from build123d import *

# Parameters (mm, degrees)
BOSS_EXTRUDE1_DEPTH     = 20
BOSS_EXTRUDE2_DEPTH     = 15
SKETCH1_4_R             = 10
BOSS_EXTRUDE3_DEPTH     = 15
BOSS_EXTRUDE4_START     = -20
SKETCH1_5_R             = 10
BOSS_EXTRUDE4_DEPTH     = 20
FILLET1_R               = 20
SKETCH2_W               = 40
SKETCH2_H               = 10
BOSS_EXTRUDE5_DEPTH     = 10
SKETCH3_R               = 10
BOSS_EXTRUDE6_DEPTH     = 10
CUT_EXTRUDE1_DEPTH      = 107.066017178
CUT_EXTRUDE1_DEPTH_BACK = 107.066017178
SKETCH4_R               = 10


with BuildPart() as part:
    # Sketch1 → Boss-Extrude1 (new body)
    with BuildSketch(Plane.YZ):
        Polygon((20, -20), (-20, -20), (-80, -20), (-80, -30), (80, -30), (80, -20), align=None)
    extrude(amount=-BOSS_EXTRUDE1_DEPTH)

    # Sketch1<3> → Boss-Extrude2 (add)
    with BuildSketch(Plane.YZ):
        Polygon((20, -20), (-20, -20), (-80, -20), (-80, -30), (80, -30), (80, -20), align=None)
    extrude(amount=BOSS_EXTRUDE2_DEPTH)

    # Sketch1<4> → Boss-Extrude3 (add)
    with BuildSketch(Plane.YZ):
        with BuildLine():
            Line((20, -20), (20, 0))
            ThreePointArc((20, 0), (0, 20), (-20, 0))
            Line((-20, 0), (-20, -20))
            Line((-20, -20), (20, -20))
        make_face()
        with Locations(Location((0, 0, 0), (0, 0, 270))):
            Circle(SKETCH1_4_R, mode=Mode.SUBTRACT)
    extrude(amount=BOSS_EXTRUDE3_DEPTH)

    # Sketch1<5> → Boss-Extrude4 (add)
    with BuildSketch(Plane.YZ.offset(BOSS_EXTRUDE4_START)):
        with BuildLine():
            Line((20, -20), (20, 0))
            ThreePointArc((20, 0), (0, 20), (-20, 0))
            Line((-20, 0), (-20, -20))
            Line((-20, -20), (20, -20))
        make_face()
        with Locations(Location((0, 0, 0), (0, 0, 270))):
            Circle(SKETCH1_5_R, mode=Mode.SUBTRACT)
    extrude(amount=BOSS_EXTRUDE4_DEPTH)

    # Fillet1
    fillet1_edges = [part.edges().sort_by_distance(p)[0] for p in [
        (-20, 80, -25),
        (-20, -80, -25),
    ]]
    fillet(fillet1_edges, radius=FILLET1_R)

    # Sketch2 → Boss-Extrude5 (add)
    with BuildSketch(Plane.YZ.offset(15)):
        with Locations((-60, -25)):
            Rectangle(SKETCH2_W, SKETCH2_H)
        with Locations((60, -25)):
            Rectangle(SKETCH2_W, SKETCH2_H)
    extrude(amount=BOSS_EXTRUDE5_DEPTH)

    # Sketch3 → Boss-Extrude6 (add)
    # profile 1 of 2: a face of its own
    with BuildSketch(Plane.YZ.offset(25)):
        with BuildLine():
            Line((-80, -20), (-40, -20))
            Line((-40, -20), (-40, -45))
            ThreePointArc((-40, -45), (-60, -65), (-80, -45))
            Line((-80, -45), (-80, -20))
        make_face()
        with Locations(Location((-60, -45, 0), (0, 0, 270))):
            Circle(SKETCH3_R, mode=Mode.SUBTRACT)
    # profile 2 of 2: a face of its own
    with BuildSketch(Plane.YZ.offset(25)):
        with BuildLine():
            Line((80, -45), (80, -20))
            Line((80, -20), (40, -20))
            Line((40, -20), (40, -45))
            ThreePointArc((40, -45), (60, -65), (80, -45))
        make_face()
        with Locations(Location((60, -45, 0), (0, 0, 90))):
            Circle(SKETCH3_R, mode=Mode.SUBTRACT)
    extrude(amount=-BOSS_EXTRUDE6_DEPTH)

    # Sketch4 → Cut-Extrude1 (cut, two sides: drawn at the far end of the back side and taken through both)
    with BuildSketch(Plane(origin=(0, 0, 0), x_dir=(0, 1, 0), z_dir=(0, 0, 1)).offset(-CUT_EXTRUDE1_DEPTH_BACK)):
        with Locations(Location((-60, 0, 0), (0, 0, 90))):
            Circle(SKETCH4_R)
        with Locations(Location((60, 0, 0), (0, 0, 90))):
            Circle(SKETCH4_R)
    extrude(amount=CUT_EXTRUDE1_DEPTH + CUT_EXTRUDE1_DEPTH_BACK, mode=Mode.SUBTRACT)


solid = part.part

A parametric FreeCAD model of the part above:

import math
import FreeCAD as App
import Part
import Sketcher
Q = App.Units.Quantity


def edges_at(feature, points):
    """Names of the edges that pass closest to the given points."""
    edges = feature.Shape.Edges
    near = lambda p: min(range(len(edges)), key=lambda i: edges[i].distToShape(Part.Vertex(*p))[0])
    return sorted({f"Edge{near(p) + 1}" for p in points})


def add_polygon(sketch, points):
    """Adds a closed chain of lines whose ends are joined by coincident constraints."""
    first, n = sketch.GeometryCount, len(points)
    for a, b in zip(points, points[1:] + points[:1]):
        sketch.addGeometry(Part.LineSegment(App.Vector(*a, 0), App.Vector(*b, 0)), False)
    for i in range(n):
        sketch.addConstraint(Sketcher.Constraint("Coincident", first + i, 2, first + (i + 1) % n, 1))

doc = App.newDocument("Part")
body = doc.addObject("PartDesign::Body", "Body")

# Sketch on YZ plane
sketch1 = body.newObject("Sketcher::SketchObject", "Sketch")
sketch1.AttachmentSupport = (doc.getObject("YZ_Plane"), [""])
sketch1.MapMode = "FlatFace"
add_polygon(sketch1, [(-80, -20), (-80, -30), (80, -30), (80, -20)])  # lines 0-3
sketch1.addConstraint([
    Sketcher.Constraint("Vertical", 0),
    Sketcher.Constraint("Horizontal", 1),
    Sketcher.Constraint("Vertical", 2),
    Sketcher.Constraint("Horizontal", 3),
    Sketcher.Constraint("DistanceX", 1, 1, 1, 2, Q("160 mm")),
    Sketcher.Constraint("DistanceY", 0, 2, 0, 1, Q("10 mm")),
    Sketcher.Constraint("DistanceX", 0, 2, -1, 1, Q("80 mm")),
    Sketcher.Constraint("DistanceY", 0, 2, -1, 1, Q("30 mm")),
])
pad1 = body.newObject("PartDesign::Pad", "Pad")
pad1.Profile = sketch1
pad1.Length = 20
pad1.Reversed = True

# Sketch on YZ plane
sketch2 = body.newObject("Sketcher::SketchObject", "Sketch001")
sketch2.AttachmentSupport = (doc.getObject("YZ_Plane"), [""])
sketch2.MapMode = "FlatFace"
add_polygon(sketch2, [(-80, -20), (-80, -30), (80, -30), (80, -20)])  # lines 0-3
sketch2.addConstraint([
    Sketcher.Constraint("Vertical", 0),
    Sketcher.Constraint("Horizontal", 1),
    Sketcher.Constraint("Vertical", 2),
    Sketcher.Constraint("Horizontal", 3),
    Sketcher.Constraint("DistanceX", 1, 1, 1, 2, Q("160 mm")),
    Sketcher.Constraint("DistanceY", 0, 2, 0, 1, Q("10 mm")),
    Sketcher.Constraint("DistanceX", 0, 2, -1, 1, Q("80 mm")),
    Sketcher.Constraint("DistanceY", 0, 2, -1, 1, Q("30 mm")),
])
pad2 = body.newObject("PartDesign::Pad", "Pad001")
pad2.Profile = sketch2
pad2.Length = 15

# Sketch on YZ plane
sketch3 = body.newObject("Sketcher::SketchObject", "Sketch002")
sketch3.AttachmentSupport = (doc.getObject("YZ_Plane"), [""])
sketch3.MapMode = "FlatFace"
sketch3.addGeometry([
    Part.LineSegment(App.Vector(20, -20, 0), App.Vector(20, 0, 0)),  # 0
    Part.ArcOfCircle(Part.Circle(App.Vector(0, 0, 0), App.Vector(0, 0, 1), 20), math.radians(0), math.radians(180)),  # 1
    Part.LineSegment(App.Vector(-20, 0, 0), App.Vector(-20, -20, 0)),  # 2
    Part.LineSegment(App.Vector(-20, -20, 0), App.Vector(20, -20, 0)),  # 3
    Part.Circle(App.Vector(0, 0, 0), App.Vector(0, 0, 1), 10),  # 4
], False)
sketch3.addConstraint([
    Sketcher.Constraint("Tangent", 0, 2, 1, 1),
    Sketcher.Constraint("Tangent", 1, 2, 2, 1),
    Sketcher.Constraint("Coincident", 2, 2, 3, 1),
    Sketcher.Constraint("Coincident", 3, 2, 0, 1),
    Sketcher.Constraint("Vertical", 0),
    Sketcher.Constraint("Vertical", 2),
    Sketcher.Constraint("Horizontal", 3),
    Sketcher.Constraint("Coincident", 1, 3, -1, 1),
    Sketcher.Constraint("Coincident", 4, 3, -1, 1),
    Sketcher.Constraint("Diameter", 4, Q("20 mm")),
    Sketcher.Constraint("Radius", 1, Q("20 mm")),
    Sketcher.Constraint("DistanceY", 0, 1, 0, 2, Q("20 mm")),
])
pad3 = body.newObject("PartDesign::Pad", "Pad002")
pad3.Profile = sketch3
pad3.Length = 15

# Sketch on YZ plane
sketch4 = body.newObject("Sketcher::SketchObject", "Sketch003")
sketch4.AttachmentSupport = (doc.getObject("YZ_Plane"), [""])
sketch4.MapMode = "FlatFace"
sketch4.AttachmentOffset = App.Placement(App.Vector(0, 0, -20), App.Rotation())
sketch4.addGeometry([
    Part.LineSegment(App.Vector(20, -20, 0), App.Vector(20, 0, 0)),  # 0
    Part.ArcOfCircle(Part.Circle(App.Vector(0, 0, 0), App.Vector(0, 0, 1), 20), math.radians(0), math.radians(180)),  # 1
    Part.LineSegment(App.Vector(-20, 0, 0), App.Vector(-20, -20, 0)),  # 2
    Part.LineSegment(App.Vector(-20, -20, 0), App.Vector(20, -20, 0)),  # 3
    Part.Circle(App.Vector(0, 0, 0), App.Vector(0, 0, 1), 10),  # 4
], False)
sketch4.addConstraint([
    Sketcher.Constraint("Tangent", 0, 2, 1, 1),
    Sketcher.Constraint("Tangent", 1, 2, 2, 1),
    Sketcher.Constraint("Coincident", 2, 2, 3, 1),
    Sketcher.Constraint("Coincident", 3, 2, 0, 1),
    Sketcher.Constraint("Vertical", 0),
    Sketcher.Constraint("Vertical", 2),
    Sketcher.Constraint("Horizontal", 3),
    Sketcher.Constraint("Coincident", 1, 3, -1, 1),
    Sketcher.Constraint("Coincident", 4, 3, -1, 1),
    Sketcher.Constraint("Diameter", 4, Q("20 mm")),
    Sketcher.Constraint("Radius", 1, Q("20 mm")),
    Sketcher.Constraint("DistanceY", 0, 1, 0, 2, Q("20 mm")),
])
pad4 = body.newObject("PartDesign::Pad", "Pad003")
pad4.Profile = sketch4
pad4.Length = 20
doc.recompute()

fillet = body.newObject("PartDesign::Fillet", "Fillet")
fillet.Base = (pad4, edges_at(pad4, [(-20, 80, -25), (-20, -80, -25)]))
fillet.Radius = 20

# Sketch on YZ plane
sketch5 = body.newObject("Sketcher::SketchObject", "Sketch004")
sketch5.AttachmentSupport = (doc.getObject("YZ_Plane"), [""])
sketch5.MapMode = "FlatFace"
sketch5.AttachmentOffset = App.Placement(App.Vector(0, 0, 15), App.Rotation())
add_polygon(sketch5, [(-80, -20), (-80, -30), (-40, -30), (-40, -20)])  # lines 0-3
add_polygon(sketch5, [(40, -20), (40, -30), (80, -30), (80, -20)])  # lines 4-7
sketch5.addConstraint([
    Sketcher.Constraint("Vertical", 0),
    Sketcher.Constraint("Horizontal", 1),
    Sketcher.Constraint("Vertical", 2),
    Sketcher.Constraint("Horizontal", 3),
    Sketcher.Constraint("Vertical", 4),
    Sketcher.Constraint("Horizontal", 5),
    Sketcher.Constraint("Vertical", 6),
    Sketcher.Constraint("Horizontal", 7),
    Sketcher.Constraint("Symmetric", 1, 2, 4, 2, -2),
    Sketcher.Constraint("Symmetric", 3, 2, 6, 2, -2),
    Sketcher.Constraint("DistanceX", 1, 1, 1, 2, Q("40 mm")),
    Sketcher.Constraint("DistanceY", 0, 2, 0, 1, Q("10 mm")),
    Sketcher.Constraint("DistanceX", 0, 2, -1, 1, Q("80 mm")),
    Sketcher.Constraint("DistanceY", 0, 2, -1, 1, Q("30 mm")),
])
pad5 = body.newObject("PartDesign::Pad", "Pad004")
pad5.Profile = sketch5
pad5.Length = 10

# Sketch on YZ plane
sketch6 = body.newObject("Sketcher::SketchObject", "Sketch005")
sketch6.AttachmentSupport = (doc.getObject("YZ_Plane"), [""])
sketch6.MapMode = "FlatFace"
sketch6.AttachmentOffset = App.Placement(App.Vector(0, 0, 25), App.Rotation())
sketch6.addGeometry([
    Part.LineSegment(App.Vector(-40, -20, 0), App.Vector(-80, -20, 0)),  # 0
    Part.LineSegment(App.Vector(-80, -20, 0), App.Vector(-80, -45, 0)),  # 1
    Part.ArcOfCircle(Part.Circle(App.Vector(-60, -45, 0), App.Vector(0, 0, 1), 20), math.radians(180), math.radians(360)),  # 2
    Part.LineSegment(App.Vector(-40, -45, 0), App.Vector(-40, -20, 0)),  # 3
    Part.Circle(App.Vector(-60, -45, 0), App.Vector(0, 0, 1), 10),  # 4
    Part.LineSegment(App.Vector(80, -45, 0), App.Vector(80, -20, 0)),  # 5
    Part.LineSegment(App.Vector(80, -20, 0), App.Vector(40, -20, 0)),  # 6
    Part.LineSegment(App.Vector(40, -20, 0), App.Vector(40, -45, 0)),  # 7
    Part.ArcOfCircle(Part.Circle(App.Vector(60, -45, 0), App.Vector(0, 0, 1), 20), math.radians(180), math.radians(360)),  # 8
    Part.Circle(App.Vector(60, -45, 0), App.Vector(0, 0, 1), 10),  # 9
], False)
sketch6.addConstraint([
    Sketcher.Constraint("Coincident", 0, 2, 1, 1),
    Sketcher.Constraint("Tangent", 1, 2, 2, 1),
    Sketcher.Constraint("Tangent", 2, 2, 3, 1),
    Sketcher.Constraint("Coincident", 3, 2, 0, 1),
    Sketcher.Constraint("Coincident", 5, 2, 6, 1),
    Sketcher.Constraint("Coincident", 6, 2, 7, 1),
    Sketcher.Constraint("Tangent", 7, 2, 8, 1),
    Sketcher.Constraint("Tangent", 8, 2, 5, 1),
    Sketcher.Constraint("Horizontal", 0),
    Sketcher.Constraint("Vertical", 1),
    Sketcher.Constraint("Vertical", 3),
    Sketcher.Constraint("Vertical", 5),
    Sketcher.Constraint("Horizontal", 6),
    Sketcher.Constraint("Vertical", 7),
    Sketcher.Constraint("Coincident", 4, 3, 2, 3),
    Sketcher.Constraint("Coincident", 9, 3, 8, 3),
    Sketcher.Constraint("Equal", 2, 8),
    Sketcher.Constraint("Equal", 4, 9),
    Sketcher.Constraint("Symmetric", 2, 3, 8, 3, -2),
    Sketcher.Constraint("Horizontal", 3, 2, 5, 2),
    Sketcher.Constraint("Diameter", 4, Q("20 mm")),
    Sketcher.Constraint("Radius", 2, Q("20 mm")),
    Sketcher.Constraint("DistanceY", 1, 2, 1, 1, Q("25 mm")),
    Sketcher.Constraint("DistanceX", 2, 3, -1, 1, Q("60 mm")),
    Sketcher.Constraint("DistanceY", 2, 3, -1, 1, Q("45 mm")),
])
pad6 = body.newObject("PartDesign::Pad", "Pad005")
pad6.Profile = sketch6
pad6.Length = 10
pad6.Reversed = True

# Sketch on XY plane
sketch7 = body.newObject("Sketcher::SketchObject", "Sketch006")
sketch7.AttachmentSupport = (doc.getObject("XY_Plane"), [""])
sketch7.MapMode = "FlatFace"
sketch7.addGeometry([
    Part.Circle(App.Vector(0, -60, 0), App.Vector(0, 0, 1), 10),
    Part.Circle(App.Vector(0, 60, 0), App.Vector(0, 0, 1), 10),
], False)
sketch7.addConstraint([
    Sketcher.Constraint("Equal", 0, 1),
    Sketcher.Constraint("Symmetric", 0, 3, 1, 3, -1, 1),
    Sketcher.Constraint("PointOnObject", 0, 3, -2),
    Sketcher.Constraint("Diameter", 0, Q("20 mm")),
    Sketcher.Constraint("DistanceY", 0, 3, -1, 1, Q("60 mm")),
])
pocket1 = body.newObject("PartDesign::Pocket", "Pocket")
pocket1.Profile = sketch7
pocket1.Type = "ThroughAll"
pocket1.Midplane = True

doc.recompute()
